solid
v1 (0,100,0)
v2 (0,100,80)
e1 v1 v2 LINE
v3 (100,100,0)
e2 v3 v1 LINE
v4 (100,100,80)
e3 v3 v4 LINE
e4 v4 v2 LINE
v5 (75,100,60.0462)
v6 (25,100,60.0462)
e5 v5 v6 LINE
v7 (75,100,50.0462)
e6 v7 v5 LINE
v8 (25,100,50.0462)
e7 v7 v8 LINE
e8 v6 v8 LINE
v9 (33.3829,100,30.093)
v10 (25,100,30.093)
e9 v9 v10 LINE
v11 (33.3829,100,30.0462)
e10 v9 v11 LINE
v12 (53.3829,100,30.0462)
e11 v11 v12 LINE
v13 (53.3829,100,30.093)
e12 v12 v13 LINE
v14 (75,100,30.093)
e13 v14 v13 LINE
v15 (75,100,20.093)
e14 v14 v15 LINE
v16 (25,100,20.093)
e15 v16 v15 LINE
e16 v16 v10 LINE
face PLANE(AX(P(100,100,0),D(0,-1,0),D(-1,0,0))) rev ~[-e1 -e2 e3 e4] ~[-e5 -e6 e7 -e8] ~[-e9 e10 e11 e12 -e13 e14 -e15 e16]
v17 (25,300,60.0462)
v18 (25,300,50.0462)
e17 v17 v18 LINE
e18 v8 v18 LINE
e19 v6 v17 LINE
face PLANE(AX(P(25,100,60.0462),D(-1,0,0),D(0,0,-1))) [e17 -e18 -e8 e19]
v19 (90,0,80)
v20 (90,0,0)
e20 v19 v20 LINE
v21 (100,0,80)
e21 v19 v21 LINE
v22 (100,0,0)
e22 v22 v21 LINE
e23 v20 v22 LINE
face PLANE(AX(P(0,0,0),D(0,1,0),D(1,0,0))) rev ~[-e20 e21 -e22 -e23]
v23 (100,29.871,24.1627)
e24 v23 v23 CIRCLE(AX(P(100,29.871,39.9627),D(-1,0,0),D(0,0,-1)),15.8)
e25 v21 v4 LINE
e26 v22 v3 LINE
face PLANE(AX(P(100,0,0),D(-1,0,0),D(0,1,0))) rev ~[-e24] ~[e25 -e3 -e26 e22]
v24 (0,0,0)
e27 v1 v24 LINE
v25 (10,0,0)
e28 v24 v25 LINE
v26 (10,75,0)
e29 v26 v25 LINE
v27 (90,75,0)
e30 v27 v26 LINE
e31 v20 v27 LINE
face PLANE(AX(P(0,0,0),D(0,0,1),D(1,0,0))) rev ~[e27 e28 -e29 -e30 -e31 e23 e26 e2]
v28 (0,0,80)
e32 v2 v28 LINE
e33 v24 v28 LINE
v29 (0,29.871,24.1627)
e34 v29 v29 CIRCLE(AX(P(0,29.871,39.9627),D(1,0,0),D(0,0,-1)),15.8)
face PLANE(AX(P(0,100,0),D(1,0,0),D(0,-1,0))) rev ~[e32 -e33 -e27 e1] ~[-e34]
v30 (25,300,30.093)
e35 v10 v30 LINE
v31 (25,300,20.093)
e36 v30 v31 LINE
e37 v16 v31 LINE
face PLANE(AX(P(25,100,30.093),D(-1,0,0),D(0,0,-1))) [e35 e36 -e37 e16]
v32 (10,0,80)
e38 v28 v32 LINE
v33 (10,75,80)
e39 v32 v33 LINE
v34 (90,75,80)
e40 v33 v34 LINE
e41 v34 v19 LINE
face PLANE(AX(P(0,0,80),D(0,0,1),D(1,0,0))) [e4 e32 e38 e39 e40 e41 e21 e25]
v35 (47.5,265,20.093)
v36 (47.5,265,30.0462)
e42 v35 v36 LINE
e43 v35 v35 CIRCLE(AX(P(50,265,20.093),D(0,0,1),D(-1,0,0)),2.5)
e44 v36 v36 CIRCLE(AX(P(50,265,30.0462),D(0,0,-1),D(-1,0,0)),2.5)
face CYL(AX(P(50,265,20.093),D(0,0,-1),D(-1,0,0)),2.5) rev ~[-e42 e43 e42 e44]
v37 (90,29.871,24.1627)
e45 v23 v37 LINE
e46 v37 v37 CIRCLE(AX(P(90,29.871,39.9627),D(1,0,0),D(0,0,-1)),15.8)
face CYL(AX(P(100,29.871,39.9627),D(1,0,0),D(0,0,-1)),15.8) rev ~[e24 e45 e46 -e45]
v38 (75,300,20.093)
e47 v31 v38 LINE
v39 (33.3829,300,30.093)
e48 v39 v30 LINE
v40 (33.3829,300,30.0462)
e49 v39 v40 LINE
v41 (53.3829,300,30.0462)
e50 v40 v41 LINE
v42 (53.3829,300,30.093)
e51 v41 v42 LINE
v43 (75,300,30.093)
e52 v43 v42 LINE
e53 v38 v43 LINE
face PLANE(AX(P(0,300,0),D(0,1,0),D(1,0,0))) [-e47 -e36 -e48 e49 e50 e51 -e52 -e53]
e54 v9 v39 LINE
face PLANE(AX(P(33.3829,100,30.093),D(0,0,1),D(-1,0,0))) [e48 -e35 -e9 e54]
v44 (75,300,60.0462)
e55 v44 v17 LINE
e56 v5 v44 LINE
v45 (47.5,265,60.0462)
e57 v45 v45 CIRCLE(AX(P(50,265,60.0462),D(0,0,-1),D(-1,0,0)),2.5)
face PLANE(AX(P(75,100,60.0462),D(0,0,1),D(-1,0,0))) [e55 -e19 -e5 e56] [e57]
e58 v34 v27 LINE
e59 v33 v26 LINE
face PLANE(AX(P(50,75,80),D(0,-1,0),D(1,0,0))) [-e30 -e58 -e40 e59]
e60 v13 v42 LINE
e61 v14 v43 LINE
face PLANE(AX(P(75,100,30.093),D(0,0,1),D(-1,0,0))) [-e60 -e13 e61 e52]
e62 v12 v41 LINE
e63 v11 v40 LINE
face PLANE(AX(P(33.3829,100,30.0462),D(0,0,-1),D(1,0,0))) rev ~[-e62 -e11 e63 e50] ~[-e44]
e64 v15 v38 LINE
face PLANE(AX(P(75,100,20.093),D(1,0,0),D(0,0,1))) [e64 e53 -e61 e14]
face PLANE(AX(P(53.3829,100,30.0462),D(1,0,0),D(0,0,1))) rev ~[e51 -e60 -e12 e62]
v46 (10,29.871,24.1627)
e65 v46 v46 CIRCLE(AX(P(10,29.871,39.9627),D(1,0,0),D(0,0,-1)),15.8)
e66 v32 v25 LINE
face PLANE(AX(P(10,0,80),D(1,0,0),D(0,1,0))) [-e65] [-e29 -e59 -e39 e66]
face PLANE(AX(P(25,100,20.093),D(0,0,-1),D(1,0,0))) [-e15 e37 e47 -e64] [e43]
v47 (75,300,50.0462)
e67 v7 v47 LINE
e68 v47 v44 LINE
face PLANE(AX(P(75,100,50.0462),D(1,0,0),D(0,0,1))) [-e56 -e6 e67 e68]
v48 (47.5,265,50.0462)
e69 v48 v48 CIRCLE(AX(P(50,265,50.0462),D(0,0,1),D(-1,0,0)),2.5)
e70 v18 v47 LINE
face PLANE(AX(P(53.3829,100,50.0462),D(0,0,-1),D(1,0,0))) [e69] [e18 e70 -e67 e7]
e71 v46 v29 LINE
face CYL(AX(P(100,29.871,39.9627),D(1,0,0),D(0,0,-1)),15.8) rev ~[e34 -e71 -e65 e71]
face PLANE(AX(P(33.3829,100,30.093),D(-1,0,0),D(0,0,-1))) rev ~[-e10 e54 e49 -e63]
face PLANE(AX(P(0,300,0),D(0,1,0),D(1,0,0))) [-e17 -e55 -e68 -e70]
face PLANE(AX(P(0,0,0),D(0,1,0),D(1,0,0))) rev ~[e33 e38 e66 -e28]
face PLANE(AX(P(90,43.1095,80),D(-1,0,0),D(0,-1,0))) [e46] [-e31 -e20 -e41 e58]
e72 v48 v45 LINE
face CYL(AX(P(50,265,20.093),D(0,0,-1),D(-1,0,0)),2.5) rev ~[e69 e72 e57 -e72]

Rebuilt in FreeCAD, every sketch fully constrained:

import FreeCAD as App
import Part
import Sketcher

doc = App.newDocument("Part")
body = doc.addObject("PartDesign::Body", "Body")

# Sketch on XY plane
sketch1 = doc.addObject("Sketcher::SketchObject", "Sketch")
body.addObject(sketch1)
sketch1.AttachmentSupport = (doc.XY_Plane, [""])
sketch1.MapMode = "FlatFace"
sketch1.addGeometry([
    Part.LineSegment(App.Vector(0, 100, 0), App.Vector(0, 0, 0)),
    Part.LineSegment(App.Vector(0, 0, 0), App.Vector(100, 0, 0)),
    Part.LineSegment(App.Vector(100, 0, 0), App.Vector(100, 100, 0)),
    Part.LineSegment(App.Vector(100, 100, 0), App.Vector(0, 100, 0)),
], False)
sketch1.addConstraint([
    Sketcher.Constraint("Coincident", 0, 2, 1, 1),
    Sketcher.Constraint("Coincident", 1, 2, 2, 1),
    Sketcher.Constraint("Coincident", 2, 2, 3, 1),
    Sketcher.Constraint("Coincident", 3, 2, 0, 1),
    Sketcher.Constraint("Vertical", 0),
    Sketcher.Constraint("Horizontal", 1),
    Sketcher.Constraint("Vertical", 2),
    Sketcher.Constraint("Horizontal", 3),
    Sketcher.Constraint("Coincident", 0, 2, -1, 1),
    Sketcher.Constraint("Equal", 3, 0),
    Sketcher.Constraint("DistanceX", 1, 1, 1, 2, 100.0),
])
pad1 = doc.addObject("PartDesign::Pad", "Pad")
body.addObject(pad1)
pad1.Profile = sketch1
pad1.Length = 80

# Sketch on XY plane
sketch2 = doc.addObject("Sketcher::SketchObject", "Sketch001")
body.addObject(sketch2)
sketch2.AttachmentSupport = (doc.XY_Plane, [""])
sketch2.MapMode = "FlatFace"
sketch2.AttachmentOffset = App.Placement(App.Vector(0, 0, 80), App.Rotation())
sketch2.addGeometry([
    Part.LineSegment(App.Vector(10, 75, 0), App.Vector(10, 0, 0)),
    Part.LineSegment(App.Vector(10, 0, 0), App.Vector(90, 0, 0)),
    Part.LineSegment(App.Vector(90, 0, 0), App.Vector(90, 75, 0)),
    Part.LineSegment(App.Vector(90, 75, 0), App.Vector(10, 75, 0)),
], False)
sketch2.addConstraint([
    Sketcher.Constraint("Coincident", 0, 2, 1, 1),
    Sketcher.Constraint("Coincident", 1, 2, 2, 1),
    Sketcher.Constraint("Coincident", 2, 2, 3, 1),
    Sketcher.Constraint("Coincident", 3, 2, 0, 1),
    Sketcher.Constraint("Vertical", 0),
    Sketcher.Constraint("Horizontal", 1),
    Sketcher.Constraint("Vertical", 2),
    Sketcher.Constraint("Horizontal", 3),
    Sketcher.Constraint("PointOnObject", 0, 2, -1),
    Sketcher.Constraint("DistanceX", -1, 1, 0, 2, 10.0),
    Sketcher.Constraint("DistanceX", 1, 1, 1, 2, 80.0),
    Sketcher.Constraint("DistanceY", 0, 2, 0, 1, 75.0),
])
pocket1 = doc.addObject("PartDesign::Pocket", "Pocket")
body.addObject(pocket1)
pocket1.Profile = sketch2
pocket1.Length = 80

# Sketch on XZ plane
sketch3 = doc.addObject("Sketcher::SketchObject", "Sketch002")
body.addObject(sketch3)
sketch3.AttachmentSupport = (doc.XZ_Plane, [""])
sketch3.MapMode = "FlatFace"
sketch3.AttachmentOffset = App.Placement(App.Vector(0, 0, -100), App.Rotation())
sketch3.addGeometry([
    Part.LineSegment(App.Vector(75, 50.046, 0), App.Vector(25, 50.046, 0)),  # 0
    Part.LineSegment(App.Vector(25, 50.046, 0), App.Vector(25, 60.046, 0)),  # 1
    Part.LineSegment(App.Vector(25, 60.046, 0), App.Vector(75, 60.046, 0)),  # 2
    Part.LineSegment(App.Vector(75, 60.046, 0), App.Vector(75, 50.046, 0)),  # 3
    Part.LineSegment(App.Vector(75, 20.093, 0), App.Vector(25, 20.093, 0)),  # 4
    Part.LineSegment(App.Vector(25, 20.093, 0), App.Vector(25, 30.093, 0)),  # 5
    Part.LineSegment(App.Vector(25, 30.093, 0), App.Vector(33.383, 30.093, 0)),  # 6
    Part.LineSegment(App.Vector(33.383, 30.093, 0), App.Vector(33.383, 30.046, 0)),  # 7
    Part.LineSegment(App.Vector(33.383, 30.046, 0), App.Vector(53.383, 30.046, 0)),  # 8
    Part.LineSegment(App.Vector(53.383, 30.046, 0), App.Vector(53.383, 30.093, 0)),  # 9
    Part.LineSegment(App.Vector(53.383, 30.093, 0), App.Vector(75, 30.093, 0)),  # 10
    Part.LineSegment(App.Vector(75, 30.093, 0), App.Vector(75, 20.093, 0)),  # 11
], False)
sketch3.addConstraint([
    Sketcher.Constraint("Coincident", 0, 2, 1, 1),
    Sketcher.Constraint("Coincident", 1, 2, 2, 1),
    Sketcher.Constraint("Coincident", 2, 2, 3, 1),
    Sketcher.Constraint("Coincident", 3, 2, 0, 1),
    Sketcher.Constraint("Coincident", 4, 2, 5, 1),
    Sketcher.Constraint("Coincident", 5, 2, 6, 1),
    Sketcher.Constraint("Coincident", 6, 2, 7, 1),
    Sketcher.Constraint("Coincident", 7, 2, 8, 1),
    Sketcher.Constraint("Coincident", 8, 2, 9, 1),
    Sketcher.Constraint("Coincident", 9, 2, 10, 1),
    Sketcher.Constraint("Coincident", 10, 2, 11, 1),
    Sketcher.Constraint("Coincident", 11, 2, 4, 1),
    Sketcher.Constraint("Horizontal", 0),
    Sketcher.Constraint("Vertical", 1),
    Sketcher.Constraint("Horizontal", 2),
    Sketcher.Constraint("Vertical", 3),
    Sketcher.Constraint("Horizontal", 4),
    Sketcher.Constraint("Vertical", 5),
    Sketcher.Constraint("Horizontal", 6),
    Sketcher.Constraint("Vertical", 7),
    Sketcher.Constraint("Horizontal", 8),
    Sketcher.Constraint("Vertical", 9),
    Sketcher.Constraint("Horizontal", 10),
    Sketcher.Constraint("Vertical", 11),
    Sketcher.Constraint("Horizontal", 6, 2, 9, 2),
    Sketcher.Constraint("Vertical", 1, 2, 4, 2),
    Sketcher.Constraint("Vertical", 3, 2, 10, 2),
    Sketcher.Constraint("Equal", 3, 5),
    Sketcher.Constraint("DistanceX", 0, 2, 0, 1, 50.0),
    Sketcher.Constraint("DistanceX", 8, 1, 8, 2, 20.0),
    Sketcher.Constraint("DistanceY", 1, 1, 1, 2, 10.0),
    Sketcher.Constraint("DistanceX", -1, 1, 0, 2, 25.0),
    Sketcher.Constraint("DistanceY", 7, 2, 0, 2, 20.0),
    Sketcher.Constraint("DistanceX", 6, 1, 6, 2, 8.383),
    Sketcher.Constraint("DistanceY", 7, 2, 7, 1, 0.0468),
    Sketcher.Constraint("DistanceY", -1, 1, 4, 2, 20.093),
])
pad2 = doc.addObject("PartDesign::Pad", "Pad001")
body.addObject(pad2)
pad2.Profile = sketch3
pad2.Length = 200
pad2.Reversed = True

# Sketch on XY plane
sketch4 = doc.addObject("Sketcher::SketchObject", "Sketch003")
body.addObject(sketch4)
sketch4.AttachmentSupport = (doc.XY_Plane, [""])
sketch4.MapMode = "FlatFace"
sketch4.AttachmentOffset = App.Placement(App.Vector(0, 0, 20.093), App.Rotation())
sketch4.addGeometry(Part.Circle(App.Vector(50, 265, 0), App.Vector(0, 0, 1), 2.5), False)
sketch4.addConstraint([
    Sketcher.Constraint("Diameter", 0, 5.0),
    Sketcher.Constraint("DistanceX", -1, 1, 0, 3, 50.0),
    Sketcher.Constraint("DistanceY", -1, 1, 0, 3, 265.0),
])
pocket2 = doc.addObject("PartDesign::Pocket", "Pocket001")
body.addObject(pocket2)
pocket2.Profile = sketch4
pocket2.Length = 200
pocket2.Reversed = True

# Sketch on YZ plane
sketch5 = doc.addObject("Sketcher::SketchObject", "Sketch004")
body.addObject(sketch5)
sketch5.AttachmentSupport = (doc.YZ_Plane, [""])
sketch5.MapMode = "FlatFace"
sketch5.AttachmentOffset = App.Placement(App.Vector(0, 0, 100), App.Rotation())
sketch5.addGeometry(Part.Circle(App.Vector(30, 40, 0), App.Vector(0, 0, 1), 16), False)
sketch5.addConstraint([
    Sketcher.Constraint("Diameter", 0, 31.6),
    Sketcher.Constraint("DistanceX", -1, 1, 0, 3, 29.871),
    Sketcher.Constraint("DistanceY", -1, 1, 0, 3, 39.9627),
])
pocket3 = doc.addObject("PartDesign::Pocket", "Pocket002")
body.addObject(pocket3)
pocket3.Profile = sketch5
pocket3.Length = 200

doc.recompute()
